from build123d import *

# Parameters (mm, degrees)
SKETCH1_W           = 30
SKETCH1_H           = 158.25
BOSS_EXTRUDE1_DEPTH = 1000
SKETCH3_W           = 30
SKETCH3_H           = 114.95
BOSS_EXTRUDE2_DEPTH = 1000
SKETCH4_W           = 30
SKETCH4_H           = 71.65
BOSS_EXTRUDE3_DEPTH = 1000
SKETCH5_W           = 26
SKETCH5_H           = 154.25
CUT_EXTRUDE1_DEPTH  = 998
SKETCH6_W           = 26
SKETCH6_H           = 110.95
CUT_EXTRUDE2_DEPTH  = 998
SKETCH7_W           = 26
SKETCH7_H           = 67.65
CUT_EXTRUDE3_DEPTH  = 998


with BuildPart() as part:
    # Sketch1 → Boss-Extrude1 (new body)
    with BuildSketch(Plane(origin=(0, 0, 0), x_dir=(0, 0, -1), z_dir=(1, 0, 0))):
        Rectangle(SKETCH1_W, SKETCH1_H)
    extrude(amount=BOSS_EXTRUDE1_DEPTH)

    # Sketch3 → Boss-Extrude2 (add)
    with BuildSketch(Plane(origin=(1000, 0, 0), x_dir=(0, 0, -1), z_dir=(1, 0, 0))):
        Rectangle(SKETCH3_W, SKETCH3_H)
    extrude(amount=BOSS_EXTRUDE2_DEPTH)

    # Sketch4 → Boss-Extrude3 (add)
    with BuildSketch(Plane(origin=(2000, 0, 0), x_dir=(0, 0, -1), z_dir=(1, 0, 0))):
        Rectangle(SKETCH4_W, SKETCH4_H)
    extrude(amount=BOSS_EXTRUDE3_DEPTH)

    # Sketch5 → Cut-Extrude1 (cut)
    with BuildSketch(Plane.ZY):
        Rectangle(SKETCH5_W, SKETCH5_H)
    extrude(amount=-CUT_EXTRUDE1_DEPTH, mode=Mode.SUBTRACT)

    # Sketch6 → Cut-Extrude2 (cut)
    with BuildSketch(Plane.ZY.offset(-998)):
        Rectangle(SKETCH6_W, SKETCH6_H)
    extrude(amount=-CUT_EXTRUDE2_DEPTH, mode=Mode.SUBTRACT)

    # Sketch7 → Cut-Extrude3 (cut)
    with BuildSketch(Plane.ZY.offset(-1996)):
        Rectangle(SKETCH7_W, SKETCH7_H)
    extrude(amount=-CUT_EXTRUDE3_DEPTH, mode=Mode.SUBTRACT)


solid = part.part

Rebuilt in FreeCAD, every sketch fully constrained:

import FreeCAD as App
import Part
import Sketcher

doc = App.newDocument("Part")
body = doc.addObject("PartDesign::Body", "Body")

sketch1 = body.newObject("Sketcher::SketchObject", "Sketch")
sketch1.AttachmentSupport = (doc.getObject("YZ_Plane"), [""])
sketch1.MapMode = "FlatFace"
sketch1.addGeometry([
    Part.LineSegment(App.Vector(79.125, 15, 0), App.Vector(-79.125, 15, 0)),
    Part.LineSegment(App.Vector(-79.125, 15, 0), App.Vector(-79.125, -15, 0)),
    Part.LineSegment(App.Vector(-79.125, -15, 0), App.Vector(79.125, -15, 0)),
    Part.LineSegment(App.Vector(79.125, -15, 0), App.Vector(79.125, 15, 0)),
], False)
sketch1.addConstraint([
    Sketcher.Constraint("Coincident", 0, 2, 1, 1),
    Sketcher.Constraint("Coincident", 1, 2, 2, 1),
    Sketcher.Constraint("Coincident", 2, 2, 3, 1),
    Sketcher.Constraint("Coincident", 3, 2, 0, 1),
    Sketcher.Constraint("Horizontal", 0),
    Sketcher.Constraint("Vertical", 1),
    Sketcher.Constraint("Horizontal", 2),
    Sketcher.Constraint("Vertical", 3),
    Sketcher.Constraint("Symmetric", 0, 2, 2, 2, -1, 1),
    Sketcher.Constraint("DistanceY", 1, 2, 1, 1, 30.0),
    Sketcher.Constraint("DistanceX", 0, 2, 0, 1, 158.25),
])
pad1 = body.newObject("PartDesign::Pad", "Pad")
pad1.Profile = sketch1
pad1.Length = 1000

sketch2 = body.newObject("Sketcher::SketchObject", "Sketch001")
sketch2.AttachmentSupport = (doc.getObject("YZ_Plane"), [""])
sketch2.MapMode = "FlatFace"
sketch2.AttachmentOffset = App.Placement(App.Vector(0, 0, 1000), App.Rotation())
sketch2.addGeometry([
    Part.LineSegment(App.Vector(57.475, 15, 0), App.Vector(-57.475, 15, 0)),
    Part.LineSegment(App.Vector(-57.475, 15, 0), App.Vector(-57.475, -15, 0)),
    Part.LineSegment(App.Vector(-57.475, -15, 0), App.Vector(57.475, -15, 0)),
    Part.LineSegment(App.Vector(57.475, -15, 0), App.Vector(57.475, 15, 0)),
], False)
sketch2.addConstraint([
    Sketcher.Constraint("Coincident", 0, 2, 1, 1),
    Sketcher.Constraint("Coincident", 1, 2, 2, 1),
    Sketcher.Constraint("Coincident", 2, 2, 3, 1),
    Sketcher.Constraint("Coincident", 3, 2, 0, 1),
    Sketcher.Constraint("Horizontal", 0),
    Sketcher.Constraint("Vertical", 1),
    Sketcher.Constraint("Horizontal", 2),
    Sketcher.Constraint("Vertical", 3),
    Sketcher.Constraint("Symmetric", 0, 2, 2, 2, -1, 1),
    Sketcher.Constraint("DistanceY", 1, 2, 1, 1, 30.0),
    Sketcher.Constraint("DistanceX", 0, 2, 0, 1, 114.95),
])
pad2 = body.newObject("PartDesign::Pad", "Pad001")
pad2.Profile = sketch2
pad2.Length = 1000

sketch3 = body.newObject("Sketcher::SketchObject", "Sketch002")
sketch3.AttachmentSupport = (doc.getObject("YZ_Plane"), [""])
sketch3.MapMode = "FlatFace"
sketch3.AttachmentOffset = App.Placement(App.Vector(0, 0, 2000), App.Rotation())
sketch3.addGeometry([
    Part.LineSegment(App.Vector(35.825, 15, 0), App.Vector(-35.825, 15, 0)),
    Part.LineSegment(App.Vector(-35.825, 15, 0), App.Vector(-35.825, -15, 0)),
    Part.LineSegment(App.Vector(-35.825, -15, 0), App.Vector(35.825, -15, 0)),
    Part.LineSegment(App.Vector(35.825, -15, 0), App.Vector(35.825, 15, 0)),
], False)
sketch3.addConstraint([
    Sketcher.Constraint("Coincident", 0, 2, 1, 1),
    Sketcher.Constraint("Coincident", 1, 2, 2, 1),
    Sketcher.Constraint("Coincident", 2, 2, 3, 1),
    Sketcher.Constraint("Coincident", 3, 2, 0, 1),
    Sketcher.Constraint("Horizontal", 0),
    Sketcher.Constraint("Vertical", 1),
    Sketcher.Constraint("Horizontal", 2),
    Sketcher.Constraint("Vertical", 3),
    Sketcher.Constraint("Symmetric", 0, 2, 2, 2, -1, 1),
    Sketcher.Constraint("DistanceY", 1, 2, 1, 1, 30.0),
    Sketcher.Constraint("DistanceX", 0, 2, 0, 1, 71.65),
])
pad3 = body.newObject("PartDesign::Pad", "Pad002")
pad3.Profile = sketch3
pad3.Length = 1000

sketch4 = body.newObject("Sketcher::SketchObject", "Sketch003")
sketch4.AttachmentSupport = (doc.getObject("YZ_Plane"), [""])
sketch4.MapMode = "FlatFace"
sketch4.addGeometry([
    Part.LineSegment(App.Vector(77.125, -13, 0), App.Vector(-77.125, -13, 0)),
    Part.LineSegment(App.Vector(-77.125, -13, 0), App.Vector(-77.125, 13, 0)),
    Part.LineSegment(App.Vector(-77.125, 13, 0), App.Vector(77.125, 13, 0)),
    Part.LineSegment(App.Vector(77.125, 13, 0), App.Vector(77.125, -13, 0)),
], False)
sketch4.addConstraint([
    Sketcher.Constraint("Coincident", 0, 2, 1, 1),
    Sketcher.Constraint("Coincident", 1, 2, 2, 1),
    Sketcher.Constraint("Coincident", 2, 2, 3, 1),
    Sketcher.Constraint("Coincident", 3, 2, 0, 1),
    Sketcher.Constraint("Horizontal", 0),
    Sketcher.Constraint("Vertical", 1),
    Sketcher.Constraint("Horizontal", 2),
    Sketcher.Constraint("Vertical", 3),
    Sketcher.Constraint("Symmetric", 0, 2, 2, 2, -1, 1),
    Sketcher.Constraint("DistanceY", 1, 1, 1, 2, 26.0),
    Sketcher.Constraint("DistanceX", 0, 2, 0, 1, 154.25),
])
pocket1 = body.newObject("PartDesign::Pocket", "Pocket")
pocket1.Profile = sketch4
pocket1.Length = 998
pocket1.Reversed = True

sketch5 = body.newObject("Sketcher::SketchObject", "Sketch004")
sketch5.AttachmentSupport = (doc.getObject("YZ_Plane"), [""])
sketch5.MapMode = "FlatFace"
sketch5.AttachmentOffset = App.Placement(App.Vector(0, 0, 998), App.Rotation())
sketch5.addGeometry([
    Part.LineSegment(App.Vector(55.475, -13, 0), App.Vector(-55.475, -13, 0)),
    Part.LineSegment(App.Vector(-55.475, -13, 0), App.Vector(-55.475, 13, 0)),
    Part.LineSegment(App.Vector(-55.475, 13, 0), App.Vector(55.475, 13, 0)),
    Part.LineSegment(App.Vector(55.475, 13, 0), App.Vector(55.475, -13, 0)),
], False)
sketch5.addConstraint([
    Sketcher.Constraint("Coincident", 0, 2, 1, 1),
    Sketcher.Constraint("Coincident", 1, 2, 2, 1),
    Sketcher.Constraint("Coincident", 2, 2, 3, 1),
    Sketcher.Constraint("Coincident", 3, 2, 0, 1),
    Sketcher.Constraint("Horizontal", 0),
    Sketcher.Constraint("Vertical", 1),
    Sketcher.Constraint("Horizontal", 2),
    Sketcher.Constraint("Vertical", 3),
    Sketcher.Constraint("Symmetric", 0, 2, 2, 2, -1, 1),
    Sketcher.Constraint("DistanceY", 1, 1, 1, 2, 26.0),
    Sketcher.Constraint("DistanceX", 0, 2, 0, 1, 110.95),
])
pocket2 = body.newObject("PartDesign::Pocket", "Pocket001")
pocket2.Profile = sketch5
pocket2.Length = 998
pocket2.Reversed = True

sketch6 = body.newObject("Sketcher::SketchObject", "Sketch005")
sketch6.AttachmentSupport = (doc.getObject("YZ_Plane"), [""])
sketch6.MapMode = "FlatFace"
sketch6.AttachmentOffset = App.Placement(App.Vector(0, 0, 1996), App.Rotation())
sketch6.addGeometry([
    Part.LineSegment(App.Vector(33.825, -13, 0), App.Vector(-33.825, -13, 0)),
    Part.LineSegment(App.Vector(-33.825, -13, 0), App.Vector(-33.825, 13, 0)),
    Part.LineSegment(App.Vector(-33.825, 13, 0), App.Vector(33.825, 13, 0)),
    Part.LineSegment(App.Vector(33.825, 13, 0), App.Vector(33.825, -13, 0)),
], False)
sketch6.addConstraint([
    Sketcher.Constraint("Coincident", 0, 2, 1, 1),
    Sketcher.Constraint("Coincident", 1, 2, 2, 1),
    Sketcher.Constraint("Coincident", 2, 2, 3, 1),
    Sketcher.Constraint("Coincident", 3, 2, 0, 1),
    Sketcher.Constraint("Horizontal", 0),
    Sketcher.Constraint("Vertical", 1),
    Sketcher.Constraint("Horizontal", 2),
    Sketcher.Constraint("Vertical", 3),
    Sketcher.Constraint("Symmetric", 0, 2, 2, 2, -1, 1),
    Sketcher.Constraint("DistanceY", 1, 1, 1, 2, 26.0),
    Sketcher.Constraint("DistanceX", 0, 2, 0, 1, 67.65),
])
pocket3 = body.newObject("PartDesign::Pocket", "Pocket002")
pocket3.Profile = sketch6
pocket3.Length = 998
pocket3.Reversed = True

doc.recompute()
